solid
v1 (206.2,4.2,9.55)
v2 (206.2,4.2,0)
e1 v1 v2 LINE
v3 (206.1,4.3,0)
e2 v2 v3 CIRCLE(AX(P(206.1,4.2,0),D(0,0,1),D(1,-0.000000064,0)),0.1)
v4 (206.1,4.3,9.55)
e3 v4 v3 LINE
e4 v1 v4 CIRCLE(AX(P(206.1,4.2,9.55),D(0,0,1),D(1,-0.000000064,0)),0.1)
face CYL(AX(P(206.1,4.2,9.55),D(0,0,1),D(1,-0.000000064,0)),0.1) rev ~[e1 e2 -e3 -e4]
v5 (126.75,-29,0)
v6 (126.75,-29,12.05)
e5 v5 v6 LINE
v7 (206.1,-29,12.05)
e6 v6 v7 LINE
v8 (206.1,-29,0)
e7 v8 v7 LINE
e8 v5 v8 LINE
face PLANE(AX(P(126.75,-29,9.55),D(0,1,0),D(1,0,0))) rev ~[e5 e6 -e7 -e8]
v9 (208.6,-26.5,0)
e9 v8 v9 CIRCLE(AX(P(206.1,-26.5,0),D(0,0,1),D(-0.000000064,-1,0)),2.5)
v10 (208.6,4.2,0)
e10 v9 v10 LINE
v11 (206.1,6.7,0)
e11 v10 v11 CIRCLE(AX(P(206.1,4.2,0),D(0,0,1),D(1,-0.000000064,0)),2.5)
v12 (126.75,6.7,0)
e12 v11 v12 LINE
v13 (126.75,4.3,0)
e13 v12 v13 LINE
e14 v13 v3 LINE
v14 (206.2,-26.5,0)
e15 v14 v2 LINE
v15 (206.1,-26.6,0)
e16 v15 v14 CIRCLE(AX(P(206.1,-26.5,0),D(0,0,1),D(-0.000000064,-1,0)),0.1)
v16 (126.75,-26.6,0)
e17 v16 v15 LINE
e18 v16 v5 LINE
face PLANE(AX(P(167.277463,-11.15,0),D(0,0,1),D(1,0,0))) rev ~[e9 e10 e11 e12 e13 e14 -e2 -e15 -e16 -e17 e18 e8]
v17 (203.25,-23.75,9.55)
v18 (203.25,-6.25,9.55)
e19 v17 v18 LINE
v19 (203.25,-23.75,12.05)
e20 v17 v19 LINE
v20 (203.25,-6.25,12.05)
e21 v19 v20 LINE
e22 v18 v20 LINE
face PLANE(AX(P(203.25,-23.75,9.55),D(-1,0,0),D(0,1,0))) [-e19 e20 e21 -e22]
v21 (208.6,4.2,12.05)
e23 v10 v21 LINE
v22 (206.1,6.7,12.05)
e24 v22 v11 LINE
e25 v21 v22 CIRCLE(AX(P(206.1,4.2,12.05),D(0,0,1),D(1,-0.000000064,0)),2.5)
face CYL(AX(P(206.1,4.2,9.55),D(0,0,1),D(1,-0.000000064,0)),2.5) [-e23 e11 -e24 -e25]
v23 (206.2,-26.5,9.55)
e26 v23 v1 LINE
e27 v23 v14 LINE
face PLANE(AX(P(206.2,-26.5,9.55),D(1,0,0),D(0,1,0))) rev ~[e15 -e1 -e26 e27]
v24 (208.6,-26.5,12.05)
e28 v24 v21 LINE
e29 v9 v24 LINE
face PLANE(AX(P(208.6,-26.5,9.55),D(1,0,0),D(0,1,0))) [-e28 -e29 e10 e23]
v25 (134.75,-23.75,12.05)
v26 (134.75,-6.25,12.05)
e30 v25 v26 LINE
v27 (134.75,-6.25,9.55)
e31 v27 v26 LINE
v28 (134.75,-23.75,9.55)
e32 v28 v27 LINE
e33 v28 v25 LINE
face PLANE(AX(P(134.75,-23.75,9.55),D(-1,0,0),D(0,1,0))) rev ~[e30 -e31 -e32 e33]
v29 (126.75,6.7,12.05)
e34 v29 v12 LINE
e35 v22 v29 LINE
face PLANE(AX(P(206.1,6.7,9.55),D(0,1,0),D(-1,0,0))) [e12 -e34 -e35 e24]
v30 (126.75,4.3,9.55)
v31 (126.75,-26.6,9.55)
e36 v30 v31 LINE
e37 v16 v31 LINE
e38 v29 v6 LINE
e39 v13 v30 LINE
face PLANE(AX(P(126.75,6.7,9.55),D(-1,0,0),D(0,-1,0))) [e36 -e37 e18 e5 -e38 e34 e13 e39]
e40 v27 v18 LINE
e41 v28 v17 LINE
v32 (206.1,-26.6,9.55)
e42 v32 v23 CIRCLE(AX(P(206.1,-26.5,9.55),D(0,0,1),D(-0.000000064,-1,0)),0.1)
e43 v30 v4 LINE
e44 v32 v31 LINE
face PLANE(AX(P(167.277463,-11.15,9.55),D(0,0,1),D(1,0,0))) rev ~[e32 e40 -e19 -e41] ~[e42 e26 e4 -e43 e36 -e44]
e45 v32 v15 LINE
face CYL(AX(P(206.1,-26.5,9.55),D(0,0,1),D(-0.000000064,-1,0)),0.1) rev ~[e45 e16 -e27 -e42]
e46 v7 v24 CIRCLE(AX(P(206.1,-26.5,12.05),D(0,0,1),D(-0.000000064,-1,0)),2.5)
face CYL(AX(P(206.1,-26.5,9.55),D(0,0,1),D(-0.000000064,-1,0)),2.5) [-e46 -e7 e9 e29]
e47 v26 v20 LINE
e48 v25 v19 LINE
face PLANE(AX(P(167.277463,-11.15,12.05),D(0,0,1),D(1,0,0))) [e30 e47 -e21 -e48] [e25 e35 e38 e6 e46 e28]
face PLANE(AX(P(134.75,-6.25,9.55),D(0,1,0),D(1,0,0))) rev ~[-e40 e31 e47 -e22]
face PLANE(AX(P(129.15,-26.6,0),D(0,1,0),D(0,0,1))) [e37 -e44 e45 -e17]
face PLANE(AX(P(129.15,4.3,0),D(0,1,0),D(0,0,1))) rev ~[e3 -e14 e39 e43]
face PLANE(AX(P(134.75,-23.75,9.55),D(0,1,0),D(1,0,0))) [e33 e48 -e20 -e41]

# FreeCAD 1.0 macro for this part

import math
import FreeCAD as App
import Part
import Sketcher
from FreeCAD import Vector


def faces_at(feature, points):
    """Names of the faces that lie closest to the given points."""
    faces = feature.Shape.Faces
    near = lambda p: min(range(len(faces)), key=lambda i: faces[i].distToShape(Part.Vertex(*p))[0])
    return sorted({f"Face{near(p) + 1}" for p in points})


def add_polygon(sketch, points):
    """Adds a closed chain of lines whose ends are joined by coincident constraints."""
    first, n = sketch.GeometryCount, len(points)
    for a, b in zip(points, points[1:] + points[:1]):
        sketch.addGeometry(Part.LineSegment(App.Vector(*a, 0), App.Vector(*b, 0)), False)
    for i in range(n):
        sketch.addConstraint(Sketcher.Constraint("Coincident", first + i, 2, first + (i + 1) % n, 1))

doc = App.newDocument("Part")
params = doc.addObject("Spreadsheet::Sheet", "Params")
for row, (alias, value) in enumerate([
    ("sketch1_radius", "2.5 mm"),
    ("sketch1_height", "35.7 mm"),
    ("sketch1_width", "79.35 mm"),
    ("pad1_length", "9.55 mm"),
    ("thickness_wall", "2.4 mm"),
    ("sketch2_width", "30.9 mm"),
    ("sketch2_height", "9.55 mm"),
    ("pocket1_length", "2.4 mm"),
    ("sketch3_radius", "2.5 mm"),
    ("sketch3_width", "68.5 mm"),
    ("sketch3_height", "35.7 mm"),
    ("sketch3_height2", "17.5 mm"),
    ("sketch3_width2", "79.35 mm"),
    ("pad2_length", "2.5 mm"),
], start=1):
    params.set(f"A{row}", alias)
    params.set(f"B{row}", "=" + value)
    params.setAlias(f"B{row}", alias)

body = doc.addObject("PartDesign::Body", "Body")

# Sketch on XY plane
sketch1 = body.newObject("Sketcher::SketchObject", "Sketch")
sketch1.AttachmentSupport = (doc.getObject("XY_Plane"), [""])
sketch1.MapMode = "FlatFace"
sketch1.addGeometry([
    Part.LineSegment(Vector(126.75, 6.7, 0), Vector(126.75, -29, 0)),  # 0
    Part.LineSegment(Vector(126.75, -29, 0), Vector(206.1, -29, 0)),  # 1
    Part.ArcOfCircle(Part.Circle(Vector(206.1, -26.5, 0), Vector(0, 0, 1), 2.5), math.radians(-90.000004), math.radians(0.000004)),  # 2
    Part.LineSegment(Vector(208.6, -26.5, 0), Vector(208.6, 4.2, 0)),  # 3
    Part.ArcOfCircle(Part.Circle(Vector(206.1, 4.2, 0), Vector(0, 0, 1), 2.5), math.radians(-0.000004), math.radians(90.000004)),  # 4
    Part.LineSegment(Vector(206.1, 6.7, 0), Vector(126.75, 6.7, 0)),  # 5
], False)
sketch1.addConstraint([
    Sketcher.Constraint("Coincident", 0, 2, 1, 1),
    Sketcher.Constraint("Tangent", 1, 2, 2, 1),
    Sketcher.Constraint("Tangent", 2, 2, 3, 1),
    Sketcher.Constraint("Tangent", 3, 2, 4, 1),
    Sketcher.Constraint("Tangent", 4, 2, 5, 1),
    Sketcher.Constraint("Coincident", 5, 2, 0, 1),
    Sketcher.Constraint("Vertical", 0),
    Sketcher.Constraint("Horizontal", 1),
    Sketcher.Constraint("Vertical", 3),
    Sketcher.Constraint("Horizontal", 5),
    Sketcher.Constraint("Equal", 2, 4),
    Sketcher.Constraint("Radius", 2, 2.5),
    Sketcher.Constraint("DistanceY", 0, 2, 0, 1, 35.7),
    Sketcher.Constraint("DistanceY", 0, 2, -1, 1, 29.0),
    Sketcher.Constraint("DistanceX", 1, 1, 1, 2, 79.35),
    Sketcher.Constraint("DistanceX", -1, 1, 2, 3, 206.1),
])
sketch1.setExpression("Constraints[11]", "Params.sketch1_radius")
sketch1.setExpression("Constraints[12]", "Params.sketch1_height")
sketch1.setExpression("Constraints[14]", "Params.sketch1_width")
pad1 = body.newObject("PartDesign::Pad", "Pad")
pad1.Profile = sketch1
pad1.setExpression("Length", "Params.pad1_length")
pad1.Reversed = True
doc.recompute()

thickness = body.newObject("PartDesign::Thickness", "Thickness")
thickness.Base = (pad1, faces_at(pad1, [(167.675, -11.15, -9.55), (167.675, -11.15, 0)]))
thickness.setExpression("Value", "Params.thickness_wall")
thickness.Reversed = True
thickness.Join = "Intersection"

# Sketch on YZ plane
sketch2 = body.newObject("Sketcher::SketchObject", "Sketch001")
sketch2.AttachmentSupport = (doc.getObject("YZ_Plane"), [""])
sketch2.MapMode = "FlatFace"
sketch2.AttachmentOffset = App.Placement(Vector(0, 0, 129.15), App.Rotation())
add_polygon(sketch2, [(-26.6, 0), (-26.6, -9.55), (4.3, -9.55), (4.3, 0)])  # lines 0-3
sketch2.addConstraint([
    Sketcher.Constraint("Vertical", 0),
    Sketcher.Constraint("Horizontal", 1),
    Sketcher.Constraint("Vertical", 2),
    Sketcher.Constraint("Horizontal", 3),
    Sketcher.Constraint("PointOnObject", 2, 2, -1),
    Sketcher.Constraint("DistanceX", 1, 1, 1, 2, 30.9),
    Sketcher.Constraint("DistanceY", 0, 2, 0, 1, 9.55),
    Sketcher.Constraint("DistanceX", 0, 2, -1, 1, 26.6),
])
sketch2.setExpression("Constraints[9]", "Params.sketch2_width")
sketch2.setExpression("Constraints[10]", "Params.sketch2_height")
pocket1 = body.newObject("PartDesign::Pocket", "Pocket")
pocket1.Profile = sketch2
pocket1.setExpression("Length", "Params.pocket1_length")
body2 = doc.addObject("PartDesign::Body", "Body001")
doc.recompute()

body.Placement = App.Placement(Vector(0, 0, 10), App.Rotation(Vector(0, 0, 1), 0))
boolean = body2.newObject("PartDesign::Boolean", "Boolean")
boolean.Type = "Fuse"
boolean.addObjects([body])
body3 = doc.addObject("PartDesign::Body", "Body002")

# Sketch on XY plane
sketch3 = body3.newObject("Sketcher::SketchObject", "Sketch002")
sketch3.AttachmentSupport = (doc.getObject("XY_Plane002"), [""])
sketch3.MapMode = "FlatFace"
sketch3.addGeometry(Part.LineSegment(Vector(126.75, 6.7, 0), Vector(126.75, -29, 0)), False)  # 0
sketch3.addGeometry(Part.LineSegment(Vector(126.75, -29, 0), Vector(206.1, -29, 0)), False)  # 1
sketch3.addGeometry(Part.ArcOfCircle(Part.Circle(Vector(206.1, -26.5, 0), Vector(0, 0, 1), 2.5), math.radians(-90.000004), math.radians(0.000004)), False)  # 2
sketch3.addGeometry(Part.LineSegment(Vector(208.6, -26.5, 0), Vector(208.6, 4.2, 0)), False)  # 3
sketch3.addGeometry(Part.ArcOfCircle(Part.Circle(Vector(206.1, 4.2, 0), Vector(0, 0, 1), 2.5), math.radians(-0.000004), math.radians(90.000004)), False)  # 4
sketch3.addGeometry(Part.LineSegment(Vector(206.1, 6.7, 0), Vector(126.75, 6.7, 0)), False)  # 5
add_polygon(sketch3, [(203.25, -23.75), (134.75, -23.75), (134.75, -6.25), (203.25, -6.25)])  # lines 6-9
sketch3.addConstraint([
    Sketcher.Constraint("Coincident", 0, 2, 1, 1),
    Sketcher.Constraint("Tangent", 1, 2, 2, 1),
    Sketcher.Constraint("Tangent", 2, 2, 3, 1),
    Sketcher.Constraint("Tangent", 3, 2, 4, 1),
    Sketcher.Constraint("Tangent", 4, 2, 5, 1),
    Sketcher.Constraint("Coincident", 5, 2, 0, 1),
    Sketcher.Constraint("Vertical", 0),
    Sketcher.Constraint("Horizontal", 1),
    Sketcher.Constraint("Vertical", 3),
    Sketcher.Constraint("Horizontal", 5),
    Sketcher.Constraint("Horizontal", 6),
    Sketcher.Constraint("Vertical", 7),
    Sketcher.Constraint("Horizontal", 8),
    Sketcher.Constraint("Vertical", 9),
    Sketcher.Constraint("Equal", 2, 4),
    Sketcher.Constraint("Radius", 2, 2.5),
    Sketcher.Constraint("DistanceX", 6, 2, 6, 1, 68.5),
    Sketcher.Constraint("DistanceY", 0, 2, 0, 1, 35.7),
    Sketcher.Constraint("DistanceY", 7, 1, 7, 2, 17.5),
    Sketcher.Constraint("DistanceY", 0, 2, -1, 1, 29.0),
    Sketcher.Constraint("DistanceX", 0, 2, 6, 2, 8.0),
    Sketcher.Constraint("DistanceX", 1, 1, 1, 2, 79.35),
    Sketcher.Constraint("DistanceX", -1, 1, 2, 3, 206.1),
    Sketcher.Constraint("DistanceY", 6, 2, -1, 1, 23.75),
])
sketch3.setExpression("Constraints[19]", "Params.sketch3_radius")
sketch3.setExpression("Constraints[20]", "Params.sketch3_width")
sketch3.setExpression("Constraints[21]", "Params.sketch3_height")
sketch3.setExpression("Constraints[22]", "Params.sketch3_height2")
sketch3.setExpression("Constraints[25]", "Params.sketch3_width2")
pad2 = body3.newObject("PartDesign::Pad", "Pad001")
pad2.Profile = sketch3
pad2.setExpression("Length", "Params.pad2_length")
body4 = doc.addObject("PartDesign::Body", "Body003")
doc.recompute()

body3.Placement = App.Placement(Vector(0, 0, 10), App.Rotation(Vector(0, 0, 1), 0))
boolean2 = body4.newObject("PartDesign::Boolean", "Boolean001")
boolean2.Type = "Fuse"
boolean2.addObjects([body3])
doc.recompute()

boolean3 = body4.newObject("PartDesign::Boolean", "Boolean002")
boolean3.Type = "Fuse"
boolean3.addObjects([body2])
body5 = doc.addObject("PartDesign::Body", "Body004")
doc.recompute()

body4.Placement = App.Placement(Vector(0, 0, -0.45), App.Rotation(Vector(0, 0, 1), 0))
boolean4 = body5.newObject("PartDesign::Boolean", "Boolean003")
boolean4.Type = "Fuse"
boolean4.addObjects([body4])

doc.recompute()
